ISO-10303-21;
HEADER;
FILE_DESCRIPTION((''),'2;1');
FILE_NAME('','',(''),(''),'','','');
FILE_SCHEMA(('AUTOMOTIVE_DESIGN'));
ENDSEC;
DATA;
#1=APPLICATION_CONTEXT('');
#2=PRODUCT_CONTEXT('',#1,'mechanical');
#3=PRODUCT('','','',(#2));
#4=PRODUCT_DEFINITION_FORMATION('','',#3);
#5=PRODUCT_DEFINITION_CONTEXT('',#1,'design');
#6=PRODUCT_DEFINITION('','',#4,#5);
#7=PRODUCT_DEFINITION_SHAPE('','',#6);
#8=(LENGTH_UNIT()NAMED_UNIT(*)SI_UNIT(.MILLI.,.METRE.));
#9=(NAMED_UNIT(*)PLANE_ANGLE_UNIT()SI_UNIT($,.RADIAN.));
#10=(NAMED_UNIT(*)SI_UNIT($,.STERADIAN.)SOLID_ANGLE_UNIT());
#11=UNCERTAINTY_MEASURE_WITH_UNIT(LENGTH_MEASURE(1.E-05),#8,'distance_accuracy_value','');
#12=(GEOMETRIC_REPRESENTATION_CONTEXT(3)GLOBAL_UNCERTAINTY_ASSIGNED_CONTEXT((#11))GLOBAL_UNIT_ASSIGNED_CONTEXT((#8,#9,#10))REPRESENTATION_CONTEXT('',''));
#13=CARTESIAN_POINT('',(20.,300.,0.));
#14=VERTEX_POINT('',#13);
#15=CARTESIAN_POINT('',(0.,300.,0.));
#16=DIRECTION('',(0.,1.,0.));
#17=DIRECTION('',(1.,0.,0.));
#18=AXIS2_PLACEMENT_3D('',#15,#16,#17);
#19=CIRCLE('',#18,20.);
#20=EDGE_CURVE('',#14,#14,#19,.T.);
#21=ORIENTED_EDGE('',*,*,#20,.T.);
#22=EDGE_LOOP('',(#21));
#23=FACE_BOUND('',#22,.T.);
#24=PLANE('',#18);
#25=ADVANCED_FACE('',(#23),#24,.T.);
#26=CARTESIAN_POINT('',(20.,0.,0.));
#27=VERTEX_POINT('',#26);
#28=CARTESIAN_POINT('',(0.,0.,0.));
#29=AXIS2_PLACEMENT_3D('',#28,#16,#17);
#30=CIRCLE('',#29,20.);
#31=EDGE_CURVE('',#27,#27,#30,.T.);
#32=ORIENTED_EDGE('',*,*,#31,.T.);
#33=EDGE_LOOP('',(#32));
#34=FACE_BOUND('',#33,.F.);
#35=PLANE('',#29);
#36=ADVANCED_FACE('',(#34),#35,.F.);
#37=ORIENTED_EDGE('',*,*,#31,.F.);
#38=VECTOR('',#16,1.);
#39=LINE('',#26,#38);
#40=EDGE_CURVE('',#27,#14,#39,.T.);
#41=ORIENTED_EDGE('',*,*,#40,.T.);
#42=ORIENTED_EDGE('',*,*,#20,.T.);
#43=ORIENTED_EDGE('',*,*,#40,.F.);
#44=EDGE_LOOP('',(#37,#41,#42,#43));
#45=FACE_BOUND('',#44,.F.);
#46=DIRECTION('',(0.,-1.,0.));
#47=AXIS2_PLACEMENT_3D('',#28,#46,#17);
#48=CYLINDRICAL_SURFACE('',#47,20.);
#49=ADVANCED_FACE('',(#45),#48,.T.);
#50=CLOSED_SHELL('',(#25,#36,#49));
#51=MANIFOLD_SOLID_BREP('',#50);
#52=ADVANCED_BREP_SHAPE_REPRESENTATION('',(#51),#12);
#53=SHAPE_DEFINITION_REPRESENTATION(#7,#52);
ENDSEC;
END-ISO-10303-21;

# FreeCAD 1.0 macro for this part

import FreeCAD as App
import Part
import Sketcher
from FreeCAD import Vector
Q = App.Units.Quantity

doc = App.newDocument("Part")
params = doc.addObject("Spreadsheet::Sheet", "Params")
for row, (alias, value) in enumerate([
    ("sketch1_diameter", "40 mm"),
    ("pad1_length", "300 mm"),
], start=1):
    params.set(f"A{row}", alias)
    params.set(f"B{row}", "=" + value)
    params.setAlias(f"B{row}", alias)

body = doc.addObject("PartDesign::Body", "Body")

# Sketch on XZ plane
sketch1 = body.newObject("Sketcher::SketchObject", "Sketch")
sketch1.AttachmentSupport = (doc.getObject("XZ_Plane"), [""])
sketch1.MapMode = "FlatFace"
sketch1.addGeometry(Part.Circle(Vector(0, 0, 0), Vector(0, 0, 1), 20), False)
sketch1.addConstraint(Sketcher.Constraint("Coincident", 0, 3, -1, 1))
sketch1.addConstraint(Sketcher.Constraint("Diameter", 0, Q("40 mm")))
sketch1.setExpression("Constraints[1]", "Params.sketch1_diameter")
pad1 = body.newObject("PartDesign::Pad", "Pad")
pad1.Profile = sketch1
pad1.setExpression("Length", "Params.pad1_length")
pad1.Reversed = True

doc.recompute()
